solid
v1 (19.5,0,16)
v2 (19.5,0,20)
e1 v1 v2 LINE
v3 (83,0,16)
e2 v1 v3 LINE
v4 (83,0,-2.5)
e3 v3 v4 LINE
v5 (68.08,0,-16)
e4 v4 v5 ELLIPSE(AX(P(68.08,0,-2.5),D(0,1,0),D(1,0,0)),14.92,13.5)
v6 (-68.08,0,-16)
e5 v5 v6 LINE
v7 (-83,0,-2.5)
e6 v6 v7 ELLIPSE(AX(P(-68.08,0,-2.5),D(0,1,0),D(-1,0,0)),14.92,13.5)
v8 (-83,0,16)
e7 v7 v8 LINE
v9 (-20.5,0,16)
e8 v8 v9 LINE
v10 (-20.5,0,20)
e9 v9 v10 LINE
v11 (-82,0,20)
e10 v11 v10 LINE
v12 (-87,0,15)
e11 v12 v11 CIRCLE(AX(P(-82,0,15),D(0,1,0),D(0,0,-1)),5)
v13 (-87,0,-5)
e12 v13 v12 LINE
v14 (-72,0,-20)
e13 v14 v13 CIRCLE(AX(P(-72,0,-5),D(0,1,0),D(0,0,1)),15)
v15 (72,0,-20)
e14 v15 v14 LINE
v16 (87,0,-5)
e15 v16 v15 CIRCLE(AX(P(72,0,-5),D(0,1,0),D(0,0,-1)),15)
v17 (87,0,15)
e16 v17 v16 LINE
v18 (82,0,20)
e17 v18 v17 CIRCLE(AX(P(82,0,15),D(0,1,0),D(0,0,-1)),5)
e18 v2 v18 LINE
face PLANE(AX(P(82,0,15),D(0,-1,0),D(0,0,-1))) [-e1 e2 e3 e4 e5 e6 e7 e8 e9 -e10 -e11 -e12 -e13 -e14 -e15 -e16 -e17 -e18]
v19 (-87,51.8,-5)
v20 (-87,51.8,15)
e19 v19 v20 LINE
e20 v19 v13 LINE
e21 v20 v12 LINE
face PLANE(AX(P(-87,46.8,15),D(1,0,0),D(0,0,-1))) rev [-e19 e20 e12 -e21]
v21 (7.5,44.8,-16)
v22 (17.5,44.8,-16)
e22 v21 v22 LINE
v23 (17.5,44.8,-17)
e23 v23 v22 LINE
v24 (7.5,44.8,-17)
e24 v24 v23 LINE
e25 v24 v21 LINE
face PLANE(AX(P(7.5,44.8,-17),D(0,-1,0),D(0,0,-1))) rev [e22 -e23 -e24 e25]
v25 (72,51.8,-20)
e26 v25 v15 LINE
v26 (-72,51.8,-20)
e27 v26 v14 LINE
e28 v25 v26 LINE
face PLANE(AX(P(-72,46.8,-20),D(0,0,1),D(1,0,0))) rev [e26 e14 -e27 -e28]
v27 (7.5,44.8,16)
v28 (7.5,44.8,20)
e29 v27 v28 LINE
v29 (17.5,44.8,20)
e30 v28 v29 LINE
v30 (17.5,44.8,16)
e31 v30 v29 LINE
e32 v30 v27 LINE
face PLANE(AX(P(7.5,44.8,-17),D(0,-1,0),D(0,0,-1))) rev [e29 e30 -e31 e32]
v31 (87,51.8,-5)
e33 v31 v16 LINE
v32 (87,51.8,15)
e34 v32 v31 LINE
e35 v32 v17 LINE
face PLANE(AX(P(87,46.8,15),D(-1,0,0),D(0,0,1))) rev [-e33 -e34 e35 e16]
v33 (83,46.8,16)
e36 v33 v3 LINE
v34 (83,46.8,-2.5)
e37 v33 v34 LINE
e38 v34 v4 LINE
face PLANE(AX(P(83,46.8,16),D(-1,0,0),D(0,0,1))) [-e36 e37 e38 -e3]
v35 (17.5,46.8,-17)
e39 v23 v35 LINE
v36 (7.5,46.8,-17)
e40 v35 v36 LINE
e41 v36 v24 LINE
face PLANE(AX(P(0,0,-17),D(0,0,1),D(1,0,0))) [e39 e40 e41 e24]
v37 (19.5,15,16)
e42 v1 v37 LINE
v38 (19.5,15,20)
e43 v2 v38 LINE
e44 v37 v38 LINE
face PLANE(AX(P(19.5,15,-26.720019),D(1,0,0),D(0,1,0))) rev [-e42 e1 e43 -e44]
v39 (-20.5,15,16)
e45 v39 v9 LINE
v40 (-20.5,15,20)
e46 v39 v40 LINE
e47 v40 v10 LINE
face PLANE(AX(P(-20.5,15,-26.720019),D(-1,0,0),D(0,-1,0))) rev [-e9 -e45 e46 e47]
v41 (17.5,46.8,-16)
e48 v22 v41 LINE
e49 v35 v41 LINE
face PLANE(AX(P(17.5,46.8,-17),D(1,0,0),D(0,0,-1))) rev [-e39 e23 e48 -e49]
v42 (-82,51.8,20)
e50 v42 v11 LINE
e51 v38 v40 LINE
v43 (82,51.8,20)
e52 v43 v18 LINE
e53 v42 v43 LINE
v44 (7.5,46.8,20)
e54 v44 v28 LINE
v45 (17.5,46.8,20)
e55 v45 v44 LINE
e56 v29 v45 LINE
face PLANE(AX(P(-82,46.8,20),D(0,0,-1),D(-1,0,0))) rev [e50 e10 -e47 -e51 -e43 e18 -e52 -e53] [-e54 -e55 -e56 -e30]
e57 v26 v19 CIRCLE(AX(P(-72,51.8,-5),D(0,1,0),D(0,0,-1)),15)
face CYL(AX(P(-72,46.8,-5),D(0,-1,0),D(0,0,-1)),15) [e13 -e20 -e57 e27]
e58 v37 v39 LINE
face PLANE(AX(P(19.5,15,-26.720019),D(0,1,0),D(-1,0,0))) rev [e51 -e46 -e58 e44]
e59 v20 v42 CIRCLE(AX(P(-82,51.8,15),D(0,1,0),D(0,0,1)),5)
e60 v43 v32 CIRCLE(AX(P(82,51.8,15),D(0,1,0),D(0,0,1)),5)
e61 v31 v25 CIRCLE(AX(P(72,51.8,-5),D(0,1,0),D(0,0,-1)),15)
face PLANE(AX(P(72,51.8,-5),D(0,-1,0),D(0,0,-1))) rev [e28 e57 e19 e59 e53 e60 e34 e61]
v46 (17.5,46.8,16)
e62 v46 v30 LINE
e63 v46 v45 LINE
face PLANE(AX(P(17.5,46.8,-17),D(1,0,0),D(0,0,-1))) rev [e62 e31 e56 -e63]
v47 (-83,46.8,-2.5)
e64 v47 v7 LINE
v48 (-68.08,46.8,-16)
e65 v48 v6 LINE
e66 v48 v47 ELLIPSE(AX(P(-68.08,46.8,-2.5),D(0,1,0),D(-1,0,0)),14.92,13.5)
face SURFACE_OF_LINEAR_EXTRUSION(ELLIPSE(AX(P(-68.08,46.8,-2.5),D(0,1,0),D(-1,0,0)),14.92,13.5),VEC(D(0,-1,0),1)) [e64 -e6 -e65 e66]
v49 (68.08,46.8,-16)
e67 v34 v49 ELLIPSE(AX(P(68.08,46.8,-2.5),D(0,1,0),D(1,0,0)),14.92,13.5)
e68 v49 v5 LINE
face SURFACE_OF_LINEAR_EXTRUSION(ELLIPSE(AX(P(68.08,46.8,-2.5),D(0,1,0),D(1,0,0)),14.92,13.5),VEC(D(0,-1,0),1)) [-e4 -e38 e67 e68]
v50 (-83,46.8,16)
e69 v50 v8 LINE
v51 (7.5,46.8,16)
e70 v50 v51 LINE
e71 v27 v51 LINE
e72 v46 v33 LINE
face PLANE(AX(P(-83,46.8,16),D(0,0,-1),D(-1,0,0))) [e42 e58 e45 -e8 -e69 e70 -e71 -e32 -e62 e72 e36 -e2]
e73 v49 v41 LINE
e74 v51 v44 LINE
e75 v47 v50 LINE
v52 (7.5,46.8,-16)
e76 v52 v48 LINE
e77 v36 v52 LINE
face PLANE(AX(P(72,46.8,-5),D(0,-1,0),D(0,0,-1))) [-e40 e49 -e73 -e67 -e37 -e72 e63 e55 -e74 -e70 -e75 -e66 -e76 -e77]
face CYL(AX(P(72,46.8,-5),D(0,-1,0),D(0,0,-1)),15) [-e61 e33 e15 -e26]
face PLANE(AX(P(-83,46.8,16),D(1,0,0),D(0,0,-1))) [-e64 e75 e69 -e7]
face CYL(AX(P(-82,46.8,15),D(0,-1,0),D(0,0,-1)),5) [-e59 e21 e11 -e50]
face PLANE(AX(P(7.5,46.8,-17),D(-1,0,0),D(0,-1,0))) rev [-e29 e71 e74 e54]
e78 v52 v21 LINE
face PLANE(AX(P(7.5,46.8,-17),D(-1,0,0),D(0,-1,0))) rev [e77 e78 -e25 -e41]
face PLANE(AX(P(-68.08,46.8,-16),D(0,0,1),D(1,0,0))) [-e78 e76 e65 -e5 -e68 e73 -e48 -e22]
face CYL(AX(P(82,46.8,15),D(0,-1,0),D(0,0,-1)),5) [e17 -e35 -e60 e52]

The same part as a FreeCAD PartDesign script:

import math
import FreeCAD as App
import Part
import Sketcher
from FreeCAD import Vector


def add_polygon(sketch, points):
    """Adds a closed chain of lines whose ends are joined by coincident constraints."""
    first, n = sketch.GeometryCount, len(points)
    for a, b in zip(points, points[1:] + points[:1]):
        sketch.addGeometry(Part.LineSegment(App.Vector(*a, 0), App.Vector(*b, 0)), False)
    for i in range(n):
        sketch.addConstraint(Sketcher.Constraint("Coincident", first + i, 2, first + (i + 1) % n, 1))

doc = App.newDocument("Part")
body = doc.addObject("PartDesign::Body", "Body")

sketch1 = doc.addObject("Sketcher::SketchObject", "Sketch")
body.addObject(sketch1)
sketch1.AttachmentSupport = (doc.XZ_Plane, [""])
sketch1.MapMode = "FlatFace"
sketch1.addGeometry([
    Part.LineSegment(Vector(-82, 20, 0), Vector(82, 20, 0)),
    Part.ArcOfCircle(Part.Circle(Vector(82, 15, 0), Vector(0, 0, 1), 5), math.radians(0), math.radians(90)),
    Part.LineSegment(Vector(87, 15, 0), Vector(87, -5, 0)),
    Part.ArcOfCircle(Part.Circle(Vector(72, -5, 0), Vector(0, 0, 1), 15), math.radians(-90), math.radians(0)),
    Part.LineSegment(Vector(72, -20, 0), Vector(-72, -20, 0)),
    Part.ArcOfCircle(Part.Circle(Vector(-72, -5, 0), Vector(0, 0, 1), 15), math.radians(180), math.radians(270)),
    Part.LineSegment(Vector(-87, -5, 0), Vector(-87, 15, 0)),
    Part.ArcOfCircle(Part.Circle(Vector(-82, 15, 0), Vector(0, 0, 1), 5), math.radians(90), math.radians(180)),
    Part.BSplineCurve([Vector(-68.08, -16, 0), Vector(-83, -16, 0), Vector(-83, -2.5, 0)], [3, 3], [4.71238898, 6.283185307], False, 2, [1, 0.707106781, 1], False),
    Part.LineSegment(Vector(-68.08, -16, 0), Vector(68.08, -16, 0)),
    Part.BSplineCurve([Vector(83, -2.5, 0), Vector(83, -16, 0), Vector(68.08, -16, 0)], [3, 3], [0, 1.570796327], False, 2, [1, 0.707106781, 1], False),
    Part.LineSegment(Vector(83, -2.5, 0), Vector(83, 16, 0)),
    Part.LineSegment(Vector(83, 16, 0), Vector(-83, 16, 0)),
    Part.LineSegment(Vector(-83, 16, 0), Vector(-83, -2.5, 0)),
], False)
sketch1.addConstraint([
    Sketcher.Constraint("Block", 8),
    Sketcher.Constraint("Block", 10),
    Sketcher.Constraint("Tangent", 0, 2, 1, 2),
    Sketcher.Constraint("Tangent", 1, 1, 2, 1),
    Sketcher.Constraint("Tangent", 2, 2, 3, 2),
    Sketcher.Constraint("Tangent", 3, 1, 4, 1),
    Sketcher.Constraint("Tangent", 4, 2, 5, 2),
    Sketcher.Constraint("Tangent", 5, 1, 6, 1),
    Sketcher.Constraint("Tangent", 6, 2, 7, 2),
    Sketcher.Constraint("Tangent", 7, 1, 0, 1),
    Sketcher.Constraint("Coincident", 8, 1, 9, 1),
    Sketcher.Constraint("Coincident", 9, 2, 10, 2),
    Sketcher.Constraint("Coincident", 10, 1, 11, 1),
    Sketcher.Constraint("Coincident", 11, 2, 12, 1),
    Sketcher.Constraint("Coincident", 12, 2, 13, 1),
    Sketcher.Constraint("Coincident", 13, 2, 8, 2),
    Sketcher.Constraint("Horizontal", 0),
    Sketcher.Constraint("Vertical", 2),
    Sketcher.Constraint("Horizontal", 4),
    Sketcher.Constraint("Vertical", 6),
    Sketcher.Constraint("Vertical", 11),
    Sketcher.Constraint("Horizontal", 12),
    Sketcher.Constraint("Vertical", 13),
    Sketcher.Constraint("Equal", 3, 5),
    Sketcher.Constraint("Equal", 1, 7),
    Sketcher.Constraint("Radius", 1, 5.0),
    Sketcher.Constraint("Radius", 3, 15.0),
    Sketcher.Constraint("DistanceX", 0, 1, 0, 2, 164.0),
    Sketcher.Constraint("DistanceY", 2, 2, 2, 1, 20.0),
    Sketcher.Constraint("DistanceY", 11, 1, 11, 2, 18.5),
    Sketcher.Constraint("DistanceX", -1, 1, 1, 3, 82.0),
    Sketcher.Constraint("DistanceY", -1, 1, 1, 3, 15.0),
])
pad1 = doc.addObject("PartDesign::Pad", "Pad")
body.addObject(pad1)
pad1.Profile = sketch1
pad1.Length = 46.8
pad1.Reversed = True

sketch2 = doc.addObject("Sketcher::SketchObject", "Sketch001")
body.addObject(sketch2)
sketch2.AttachmentSupport = (doc.XY_Plane, [""])
sketch2.MapMode = "FlatFace"
sketch2.AttachmentOffset = App.Placement(Vector(0, 0, 20), App.Rotation())
add_polygon(sketch2, [(-20.5, 15), (-20.5, 0), (19.5, 0), (19.5, 15)])
sketch2.addConstraint([
    Sketcher.Constraint("Vertical", 0),
    Sketcher.Constraint("Horizontal", 1),
    Sketcher.Constraint("Vertical", 2),
    Sketcher.Constraint("Horizontal", 3),
    Sketcher.Constraint("PointOnObject", 0, 2, -1),
    Sketcher.Constraint("DistanceX", 1, 1, 1, 2, 40.0),
    Sketcher.Constraint("DistanceY", 0, 2, 0, 1, 15.0),
    Sketcher.Constraint("DistanceX", 0, 2, -1, 1, 20.5),
])
pocket1 = doc.addObject("PartDesign::Pocket", "Pocket")
body.addObject(pocket1)
pocket1.Profile = sketch2
pocket1.Length = 4

sketch3 = doc.addObject("Sketcher::SketchObject", "Sketch002")
body.addObject(sketch3)
sketch3.AttachmentSupport = (doc.XZ_Plane, [""])
sketch3.MapMode = "FlatFace"
sketch3.AttachmentOffset = App.Placement(Vector(0, 0, -46.8), App.Rotation())
sketch3.addGeometry([
    Part.LineSegment(Vector(-82, 20, 0), Vector(82, 20, 0)),
    Part.ArcOfCircle(Part.Circle(Vector(82, 15, 0), Vector(0, 0, 1), 5), math.radians(0), math.radians(90)),
    Part.LineSegment(Vector(87, 15, 0), Vector(87, -5, 0)),
    Part.ArcOfCircle(Part.Circle(Vector(72, -5, 0), Vector(0, 0, 1), 15), math.radians(-90), math.radians(0)),
    Part.LineSegment(Vector(72, -20, 0), Vector(-72, -20, 0)),
    Part.ArcOfCircle(Part.Circle(Vector(-72, -5, 0), Vector(0, 0, 1), 15), math.radians(180), math.radians(270)),
    Part.LineSegment(Vector(-87, -5, 0), Vector(-87, 15, 0)),
    Part.ArcOfCircle(Part.Circle(Vector(-82, 15, 0), Vector(0, 0, 1), 5), math.radians(90), math.radians(180)),
], False)
sketch3.addConstraint([
    Sketcher.Constraint("Tangent", 0, 2, 1, 2),
    Sketcher.Constraint("Tangent", 1, 1, 2, 1),
    Sketcher.Constraint("Tangent", 2, 2, 3, 2),
    Sketcher.Constraint("Tangent", 3, 1, 4, 1),
    Sketcher.Constraint("Tangent", 4, 2, 5, 2),
    Sketcher.Constraint("Tangent", 5, 1, 6, 1),
    Sketcher.Constraint("Tangent", 6, 2, 7, 2),
    Sketcher.Constraint("Tangent", 7, 1, 0, 1),
    Sketcher.Constraint("Horizontal", 0),
    Sketcher.Constraint("Vertical", 2),
    Sketcher.Constraint("Horizontal", 4),
    Sketcher.Constraint("Vertical", 6),
    Sketcher.Constraint("Equal", 3, 5),
    Sketcher.Constraint("Equal", 1, 7),
    Sketcher.Constraint("Radius", 1, 5.0),
    Sketcher.Constraint("Radius", 3, 15.0),
    Sketcher.Constraint("DistanceX", 0, 1, 0, 2, 164.0),
    Sketcher.Constraint("DistanceY", 2, 2, 2, 1, 20.0),
    Sketcher.Constraint("DistanceX", -1, 1, 1, 3, 82.0),
    Sketcher.Constraint("DistanceY", -1, 1, 1, 3, 15.0),
])
pad2 = doc.addObject("PartDesign::Pad", "Pad001")
body.addObject(pad2)
pad2.Profile = sketch3
pad2.Length = 5
pad2.Reversed = True

sketch4 = doc.addObject("Sketcher::SketchObject", "Sketch003")
body.addObject(sketch4)
sketch4.AttachmentSupport = (doc.XY_Plane, [""])
sketch4.MapMode = "FlatFace"
sketch4.AttachmentOffset = App.Placement(Vector(0, 0, 20), App.Rotation())
add_polygon(sketch4, [(7.5, 46.8), (7.5, 44.8), (17.5, 44.8), (17.5, 46.8)])
sketch4.addConstraint([
    Sketcher.Constraint("Vertical", 0),
    Sketcher.Constraint("Horizontal", 1),
    Sketcher.Constraint("Vertical", 2),
    Sketcher.Constraint("Horizontal", 3),
    Sketcher.Constraint("DistanceX", 1, 1, 1, 2, 10.0),
    Sketcher.Constraint("DistanceY", 0, 2, 0, 1, 2.0),
    Sketcher.Constraint("DistanceX", -1, 1, 0, 2, 7.5),
    Sketcher.Constraint("DistanceY", -1, 1, 0, 2, 44.8),
])
pocket2 = doc.addObject("PartDesign::Pocket", "Pocket001")
body.addObject(pocket2)
pocket2.Profile = sketch4
pocket2.Length = 37

doc.recompute()
